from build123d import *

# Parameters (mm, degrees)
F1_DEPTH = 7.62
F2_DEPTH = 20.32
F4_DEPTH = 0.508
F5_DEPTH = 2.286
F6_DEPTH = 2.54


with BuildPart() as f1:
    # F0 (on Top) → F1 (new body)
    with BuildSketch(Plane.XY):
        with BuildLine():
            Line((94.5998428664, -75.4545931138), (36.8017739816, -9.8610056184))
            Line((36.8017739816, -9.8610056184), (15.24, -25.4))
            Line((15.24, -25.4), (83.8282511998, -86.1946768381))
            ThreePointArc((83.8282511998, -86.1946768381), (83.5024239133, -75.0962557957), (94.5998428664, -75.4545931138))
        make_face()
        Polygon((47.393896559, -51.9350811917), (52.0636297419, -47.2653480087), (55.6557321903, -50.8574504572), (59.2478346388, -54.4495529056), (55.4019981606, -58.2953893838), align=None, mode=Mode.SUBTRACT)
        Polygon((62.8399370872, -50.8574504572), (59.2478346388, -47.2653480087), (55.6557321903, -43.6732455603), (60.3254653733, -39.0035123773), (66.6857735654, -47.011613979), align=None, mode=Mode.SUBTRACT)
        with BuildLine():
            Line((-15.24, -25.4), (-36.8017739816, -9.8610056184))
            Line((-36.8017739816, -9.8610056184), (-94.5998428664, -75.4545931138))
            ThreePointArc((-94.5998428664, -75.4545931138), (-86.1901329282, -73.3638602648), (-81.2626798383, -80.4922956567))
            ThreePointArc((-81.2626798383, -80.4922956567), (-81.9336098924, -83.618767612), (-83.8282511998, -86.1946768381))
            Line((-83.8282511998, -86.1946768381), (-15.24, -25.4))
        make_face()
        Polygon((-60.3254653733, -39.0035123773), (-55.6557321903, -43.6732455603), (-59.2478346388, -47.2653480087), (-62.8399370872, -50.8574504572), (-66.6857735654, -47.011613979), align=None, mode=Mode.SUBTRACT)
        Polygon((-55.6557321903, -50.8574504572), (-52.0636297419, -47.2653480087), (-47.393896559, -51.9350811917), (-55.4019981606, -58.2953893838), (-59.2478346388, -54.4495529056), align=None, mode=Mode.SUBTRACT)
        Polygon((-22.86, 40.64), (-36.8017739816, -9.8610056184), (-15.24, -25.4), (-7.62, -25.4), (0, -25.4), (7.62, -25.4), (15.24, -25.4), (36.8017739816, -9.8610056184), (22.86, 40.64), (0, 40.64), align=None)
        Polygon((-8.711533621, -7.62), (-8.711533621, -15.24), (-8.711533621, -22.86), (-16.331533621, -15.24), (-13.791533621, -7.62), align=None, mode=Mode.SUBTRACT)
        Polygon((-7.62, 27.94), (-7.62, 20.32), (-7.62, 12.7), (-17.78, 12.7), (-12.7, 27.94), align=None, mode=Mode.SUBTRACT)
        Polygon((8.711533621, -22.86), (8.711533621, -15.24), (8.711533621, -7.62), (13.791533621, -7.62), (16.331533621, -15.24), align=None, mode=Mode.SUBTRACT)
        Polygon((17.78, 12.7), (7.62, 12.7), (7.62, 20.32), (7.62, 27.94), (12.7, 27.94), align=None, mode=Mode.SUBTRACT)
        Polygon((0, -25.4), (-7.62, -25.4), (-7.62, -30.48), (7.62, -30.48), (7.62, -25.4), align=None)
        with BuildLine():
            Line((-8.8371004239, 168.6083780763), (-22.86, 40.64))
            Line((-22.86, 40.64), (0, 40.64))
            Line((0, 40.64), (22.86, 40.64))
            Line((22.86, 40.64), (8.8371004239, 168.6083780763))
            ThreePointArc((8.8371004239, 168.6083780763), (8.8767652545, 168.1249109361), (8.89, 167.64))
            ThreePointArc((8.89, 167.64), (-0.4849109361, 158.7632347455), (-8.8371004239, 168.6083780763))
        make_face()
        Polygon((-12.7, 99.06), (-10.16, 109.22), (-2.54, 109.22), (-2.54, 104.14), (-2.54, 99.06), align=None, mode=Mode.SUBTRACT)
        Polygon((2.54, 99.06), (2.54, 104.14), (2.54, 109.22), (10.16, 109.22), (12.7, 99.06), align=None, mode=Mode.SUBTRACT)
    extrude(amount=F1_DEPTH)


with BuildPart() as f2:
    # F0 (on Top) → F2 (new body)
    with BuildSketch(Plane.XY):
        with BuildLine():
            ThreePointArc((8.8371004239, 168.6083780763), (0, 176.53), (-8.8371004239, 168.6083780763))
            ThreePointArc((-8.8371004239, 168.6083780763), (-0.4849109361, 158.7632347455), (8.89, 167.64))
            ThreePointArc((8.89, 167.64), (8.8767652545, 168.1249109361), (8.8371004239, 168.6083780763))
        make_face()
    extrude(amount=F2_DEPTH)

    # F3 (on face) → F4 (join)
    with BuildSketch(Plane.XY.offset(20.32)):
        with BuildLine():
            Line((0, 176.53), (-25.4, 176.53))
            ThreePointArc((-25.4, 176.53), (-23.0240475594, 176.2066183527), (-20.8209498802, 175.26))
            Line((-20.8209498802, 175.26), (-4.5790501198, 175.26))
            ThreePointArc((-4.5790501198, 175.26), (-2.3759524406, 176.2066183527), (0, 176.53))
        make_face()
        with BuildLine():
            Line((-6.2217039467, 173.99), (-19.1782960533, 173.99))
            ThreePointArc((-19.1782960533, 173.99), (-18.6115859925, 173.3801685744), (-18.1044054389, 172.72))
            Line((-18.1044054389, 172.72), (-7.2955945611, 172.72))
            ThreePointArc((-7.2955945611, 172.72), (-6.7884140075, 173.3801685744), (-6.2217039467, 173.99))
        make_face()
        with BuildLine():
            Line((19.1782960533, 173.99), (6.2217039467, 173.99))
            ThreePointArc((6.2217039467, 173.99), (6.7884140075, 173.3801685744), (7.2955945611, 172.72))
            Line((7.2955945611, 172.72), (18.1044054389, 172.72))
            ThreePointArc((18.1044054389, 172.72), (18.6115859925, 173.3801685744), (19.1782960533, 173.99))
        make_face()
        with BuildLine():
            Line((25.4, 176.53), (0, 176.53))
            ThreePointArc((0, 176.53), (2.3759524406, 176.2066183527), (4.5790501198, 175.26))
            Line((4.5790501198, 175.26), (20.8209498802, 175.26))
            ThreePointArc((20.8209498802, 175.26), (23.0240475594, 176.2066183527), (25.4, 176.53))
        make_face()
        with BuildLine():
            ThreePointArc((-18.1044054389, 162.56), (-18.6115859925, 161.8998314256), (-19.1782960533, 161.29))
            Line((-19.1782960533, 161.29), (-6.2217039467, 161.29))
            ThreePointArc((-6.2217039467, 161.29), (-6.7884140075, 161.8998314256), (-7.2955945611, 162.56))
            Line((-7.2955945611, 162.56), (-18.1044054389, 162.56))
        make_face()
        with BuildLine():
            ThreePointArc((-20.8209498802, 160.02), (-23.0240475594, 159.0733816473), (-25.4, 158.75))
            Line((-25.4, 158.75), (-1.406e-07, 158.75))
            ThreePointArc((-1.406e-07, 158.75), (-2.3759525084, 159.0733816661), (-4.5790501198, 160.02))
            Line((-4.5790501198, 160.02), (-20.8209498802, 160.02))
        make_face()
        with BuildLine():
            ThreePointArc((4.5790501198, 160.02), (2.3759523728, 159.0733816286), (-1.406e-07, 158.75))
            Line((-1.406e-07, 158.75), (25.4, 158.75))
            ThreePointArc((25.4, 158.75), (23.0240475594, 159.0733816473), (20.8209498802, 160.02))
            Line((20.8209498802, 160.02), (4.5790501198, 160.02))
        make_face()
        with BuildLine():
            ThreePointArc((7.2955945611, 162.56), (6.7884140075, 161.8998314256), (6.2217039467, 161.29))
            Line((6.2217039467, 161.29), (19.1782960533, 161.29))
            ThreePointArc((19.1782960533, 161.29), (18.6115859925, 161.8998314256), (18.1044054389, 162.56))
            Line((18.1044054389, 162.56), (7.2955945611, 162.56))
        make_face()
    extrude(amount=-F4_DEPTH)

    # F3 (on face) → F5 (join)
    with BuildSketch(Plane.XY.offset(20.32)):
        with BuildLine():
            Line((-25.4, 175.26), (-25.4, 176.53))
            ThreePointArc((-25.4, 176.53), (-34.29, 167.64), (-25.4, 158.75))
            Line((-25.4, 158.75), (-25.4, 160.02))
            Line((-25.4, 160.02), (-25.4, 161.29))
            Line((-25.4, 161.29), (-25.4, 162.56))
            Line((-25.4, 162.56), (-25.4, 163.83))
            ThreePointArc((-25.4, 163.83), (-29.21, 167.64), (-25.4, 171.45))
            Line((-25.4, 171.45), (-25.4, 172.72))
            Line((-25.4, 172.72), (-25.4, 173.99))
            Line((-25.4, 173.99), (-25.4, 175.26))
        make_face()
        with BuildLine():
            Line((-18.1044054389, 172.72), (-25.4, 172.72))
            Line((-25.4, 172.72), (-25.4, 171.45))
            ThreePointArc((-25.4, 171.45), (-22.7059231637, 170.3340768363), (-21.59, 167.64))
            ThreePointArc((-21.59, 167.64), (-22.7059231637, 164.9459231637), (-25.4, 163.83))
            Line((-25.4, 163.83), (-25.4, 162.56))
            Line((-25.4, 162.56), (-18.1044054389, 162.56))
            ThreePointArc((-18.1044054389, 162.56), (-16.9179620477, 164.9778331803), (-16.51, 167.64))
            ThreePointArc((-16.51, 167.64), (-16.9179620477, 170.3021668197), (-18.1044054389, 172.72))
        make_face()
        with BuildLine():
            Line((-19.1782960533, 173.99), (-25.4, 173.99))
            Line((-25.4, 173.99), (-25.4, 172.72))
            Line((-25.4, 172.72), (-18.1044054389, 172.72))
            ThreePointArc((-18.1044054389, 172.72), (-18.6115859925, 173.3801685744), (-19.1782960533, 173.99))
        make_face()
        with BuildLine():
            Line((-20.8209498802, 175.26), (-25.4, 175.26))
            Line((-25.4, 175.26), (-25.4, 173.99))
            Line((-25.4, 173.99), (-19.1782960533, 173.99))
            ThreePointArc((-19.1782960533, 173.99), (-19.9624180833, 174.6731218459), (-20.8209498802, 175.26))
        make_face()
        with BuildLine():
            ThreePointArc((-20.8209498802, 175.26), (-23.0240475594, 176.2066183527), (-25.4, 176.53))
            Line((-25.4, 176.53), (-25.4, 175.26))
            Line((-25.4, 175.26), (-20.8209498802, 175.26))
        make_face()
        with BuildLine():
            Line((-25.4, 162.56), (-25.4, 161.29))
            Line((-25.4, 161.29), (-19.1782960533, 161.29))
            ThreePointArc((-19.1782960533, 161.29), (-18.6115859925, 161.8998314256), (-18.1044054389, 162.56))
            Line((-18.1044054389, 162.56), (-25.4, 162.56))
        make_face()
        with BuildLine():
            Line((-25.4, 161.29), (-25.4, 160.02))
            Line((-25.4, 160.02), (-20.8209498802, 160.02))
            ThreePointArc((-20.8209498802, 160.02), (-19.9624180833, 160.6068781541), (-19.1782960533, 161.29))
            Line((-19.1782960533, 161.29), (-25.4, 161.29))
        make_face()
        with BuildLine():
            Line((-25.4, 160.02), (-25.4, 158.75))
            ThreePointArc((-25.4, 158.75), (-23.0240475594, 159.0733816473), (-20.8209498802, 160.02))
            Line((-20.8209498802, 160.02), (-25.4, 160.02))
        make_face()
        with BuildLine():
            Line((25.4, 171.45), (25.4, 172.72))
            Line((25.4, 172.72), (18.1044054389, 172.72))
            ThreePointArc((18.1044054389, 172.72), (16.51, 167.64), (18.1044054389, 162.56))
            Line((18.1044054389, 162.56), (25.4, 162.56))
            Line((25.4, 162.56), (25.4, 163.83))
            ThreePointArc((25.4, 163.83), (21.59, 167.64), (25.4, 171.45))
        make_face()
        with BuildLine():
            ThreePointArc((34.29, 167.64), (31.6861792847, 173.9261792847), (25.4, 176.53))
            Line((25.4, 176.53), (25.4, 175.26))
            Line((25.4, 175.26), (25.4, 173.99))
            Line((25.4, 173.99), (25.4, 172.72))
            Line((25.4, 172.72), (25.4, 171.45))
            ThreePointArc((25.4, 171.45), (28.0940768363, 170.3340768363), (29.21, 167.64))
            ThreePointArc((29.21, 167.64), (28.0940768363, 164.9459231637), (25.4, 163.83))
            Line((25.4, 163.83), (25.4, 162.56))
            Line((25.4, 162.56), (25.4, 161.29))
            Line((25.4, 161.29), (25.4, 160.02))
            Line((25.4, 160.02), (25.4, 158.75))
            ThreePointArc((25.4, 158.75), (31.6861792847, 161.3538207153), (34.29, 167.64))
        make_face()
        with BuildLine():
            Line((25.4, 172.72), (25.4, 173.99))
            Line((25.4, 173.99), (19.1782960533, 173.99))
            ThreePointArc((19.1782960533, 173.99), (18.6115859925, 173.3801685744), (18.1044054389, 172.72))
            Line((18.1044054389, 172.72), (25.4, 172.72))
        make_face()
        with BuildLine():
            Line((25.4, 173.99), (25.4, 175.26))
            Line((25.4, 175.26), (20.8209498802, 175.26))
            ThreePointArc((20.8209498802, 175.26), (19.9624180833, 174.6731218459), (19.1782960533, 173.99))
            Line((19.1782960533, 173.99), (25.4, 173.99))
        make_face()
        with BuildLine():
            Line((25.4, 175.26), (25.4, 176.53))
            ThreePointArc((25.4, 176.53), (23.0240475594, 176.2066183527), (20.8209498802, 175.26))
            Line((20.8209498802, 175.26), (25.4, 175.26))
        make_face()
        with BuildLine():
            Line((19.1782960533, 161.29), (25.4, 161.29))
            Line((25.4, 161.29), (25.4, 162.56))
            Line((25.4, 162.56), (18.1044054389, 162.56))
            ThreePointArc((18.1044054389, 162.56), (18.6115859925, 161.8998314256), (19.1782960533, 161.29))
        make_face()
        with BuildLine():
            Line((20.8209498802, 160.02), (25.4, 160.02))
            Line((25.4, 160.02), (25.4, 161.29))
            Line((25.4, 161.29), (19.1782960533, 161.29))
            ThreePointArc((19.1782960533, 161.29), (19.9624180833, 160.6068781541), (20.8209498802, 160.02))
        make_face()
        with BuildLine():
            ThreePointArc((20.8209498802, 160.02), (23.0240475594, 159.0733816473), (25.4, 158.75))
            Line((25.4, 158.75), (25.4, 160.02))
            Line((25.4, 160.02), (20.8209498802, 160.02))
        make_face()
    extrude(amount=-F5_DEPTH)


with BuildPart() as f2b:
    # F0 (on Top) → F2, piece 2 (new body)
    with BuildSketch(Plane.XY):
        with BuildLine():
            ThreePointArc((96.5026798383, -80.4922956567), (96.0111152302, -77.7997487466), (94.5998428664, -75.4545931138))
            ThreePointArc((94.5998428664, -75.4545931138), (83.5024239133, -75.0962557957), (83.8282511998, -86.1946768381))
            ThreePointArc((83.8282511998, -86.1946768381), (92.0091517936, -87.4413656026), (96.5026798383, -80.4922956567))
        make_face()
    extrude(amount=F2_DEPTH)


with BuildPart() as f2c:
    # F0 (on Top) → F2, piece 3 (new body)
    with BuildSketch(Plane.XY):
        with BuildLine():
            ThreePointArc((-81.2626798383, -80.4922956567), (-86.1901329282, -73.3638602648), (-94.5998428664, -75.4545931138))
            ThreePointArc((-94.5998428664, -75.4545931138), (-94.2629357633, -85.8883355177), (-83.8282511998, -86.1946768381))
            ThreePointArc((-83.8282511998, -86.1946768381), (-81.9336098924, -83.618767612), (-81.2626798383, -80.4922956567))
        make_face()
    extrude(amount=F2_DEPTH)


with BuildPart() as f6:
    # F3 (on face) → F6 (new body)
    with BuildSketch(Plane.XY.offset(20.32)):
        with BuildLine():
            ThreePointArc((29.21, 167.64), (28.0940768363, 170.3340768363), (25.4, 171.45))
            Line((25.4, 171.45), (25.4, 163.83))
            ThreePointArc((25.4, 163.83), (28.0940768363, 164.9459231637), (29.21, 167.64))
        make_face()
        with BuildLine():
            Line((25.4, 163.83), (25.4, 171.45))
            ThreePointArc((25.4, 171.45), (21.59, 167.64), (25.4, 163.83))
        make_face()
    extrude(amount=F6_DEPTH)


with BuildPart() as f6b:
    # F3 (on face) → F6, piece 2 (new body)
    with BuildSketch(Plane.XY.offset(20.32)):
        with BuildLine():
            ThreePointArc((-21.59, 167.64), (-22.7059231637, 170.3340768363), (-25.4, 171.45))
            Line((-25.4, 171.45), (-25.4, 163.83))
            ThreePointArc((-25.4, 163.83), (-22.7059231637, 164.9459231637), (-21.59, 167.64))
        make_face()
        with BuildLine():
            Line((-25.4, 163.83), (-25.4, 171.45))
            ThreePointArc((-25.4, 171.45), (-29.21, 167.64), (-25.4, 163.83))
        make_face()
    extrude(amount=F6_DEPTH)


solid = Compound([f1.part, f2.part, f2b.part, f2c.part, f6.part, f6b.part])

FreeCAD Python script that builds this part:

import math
import FreeCAD as App
import Part
import Sketcher
from FreeCAD import Vector
Q = App.Units.Quantity


def add_polygon(sketch, points):
    """Adds a closed chain of lines whose ends are joined by coincident constraints."""
    first, n = sketch.GeometryCount, len(points)
    for a, b in zip(points, points[1:] + points[:1]):
        sketch.addGeometry(Part.LineSegment(App.Vector(*a, 0), App.Vector(*b, 0)), False)
    for i in range(n):
        sketch.addConstraint(Sketcher.Constraint("Coincident", first + i, 2, first + (i + 1) % n, 1))

doc = App.newDocument("Part")
body = doc.addObject("PartDesign::Body", "Body")

sketch1 = body.newObject("Sketcher::SketchObject", "Sketch")
sketch1.AttachmentSupport = (doc.getObject("XY_Plane"), [""])
sketch1.MapMode = "FlatFace"
sketch1.addGeometry(Part.LineSegment(Vector(94.6, -75.5, 0), Vector(36.8, -9.9, 0)), False)
sketch1.addGeometry(Part.LineSegment(Vector(36.8, -9.9, 0), Vector(22.9, 40.6, 0)), False)
sketch1.addGeometry(Part.LineSegment(Vector(22.9, 40.6, 0), Vector(8.8, 168.6, 0)), False)
sketch1.addGeometry(Part.ArcOfCircle(Part.Circle(Vector(0, 167.6, 0), Vector(0, 0, 1), 8.9), math.radians(0), math.radians(6.25)), False)
sketch1.addGeometry(Part.ArcOfCircle(Part.Circle(Vector(0, 167.6, 0), Vector(0, 0, 1), 8.9), math.radians(174), math.radians(360)), False)
sketch1.addGeometry(Part.LineSegment(Vector(-8.8, 168.6, 0), Vector(-22.9, 40.6, 0)), False)
sketch1.addGeometry(Part.LineSegment(Vector(-22.9, 40.6, 0), Vector(-36.8, -9.9, 0)), False)
sketch1.addGeometry(Part.LineSegment(Vector(-36.8, -9.9, 0), Vector(-94.6, -75.5, 0)), False)
sketch1.addGeometry(Part.ArcOfCircle(Part.Circle(Vector(-88.9, -80.5, 0), Vector(0, 0, 1), 7.6), math.radians(0), math.radians(139)), False)
sketch1.addGeometry(Part.ArcOfCircle(Part.Circle(Vector(-88.9, -80.5, 0), Vector(0, 0, 1), 7.6), math.radians(-48), math.radians(0)), False)
sketch1.addGeometry(Part.LineSegment(Vector(-83.8, -86.2, 0), Vector(-15.2, -25.4, 0)), False)
sketch1.addGeometry(Part.LineSegment(Vector(-15.2, -25.4, 0), Vector(-7.6, -25.4, 0)), False)
sketch1.addGeometry(Part.LineSegment(Vector(-7.6, -25.4, 0), Vector(-7.6, -30.5, 0)), False)
sketch1.addGeometry(Part.LineSegment(Vector(-7.6, -30.5, 0), Vector(7.6, -30.5, 0)), False)
sketch1.addGeometry(Part.LineSegment(Vector(7.6, -30.5, 0), Vector(7.6, -25.4, 0)), False)
sketch1.addGeometry(Part.LineSegment(Vector(7.6, -25.4, 0), Vector(15.2, -25.4, 0)), False)
sketch1.addGeometry(Part.LineSegment(Vector(15.2, -25.4, 0), Vector(83.8, -86.2, 0)), False)
sketch1.addGeometry(Part.ArcOfCircle(Part.Circle(Vector(88.9, -80.5, 0), Vector(0, 0, 1), 7.6), math.radians(41), math.radians(228)), False)
add_polygon(sketch1, [(-59.2, -54.4), (-55.7, -50.9), (-52.1, -47.3), (-47.4, -51.9), (-55.4, -58.3)])
add_polygon(sketch1, [(-55.7, -43.7), (-59.2, -47.3), (-62.8, -50.9), (-66.7, -47), (-60.3, -39)])
add_polygon(sketch1, [(-13.8, -7.6), (-8.7, -7.6), (-8.7, -22.9), (-16.3, -15.2)])
add_polygon(sketch1, [(-12.7, 27.9), (-7.6, 27.9), (-7.6, 12.7), (-17.8, 12.7)])
add_polygon(sketch1, [(55.4, -58.3), (47.4, -51.9), (52.1, -47.3), (55.7, -50.9), (59.2, -54.4)])
add_polygon(sketch1, [(66.7, -47), (62.8, -50.9), (59.2, -47.3), (55.7, -43.7), (60.3, -39)])
add_polygon(sketch1, [(16.3, -15.2), (8.7, -22.9), (8.7, -7.6), (13.8, -7.6)])
add_polygon(sketch1, [(12.7, 27.9), (17.8, 12.7), (7.6, 12.7), (7.6, 27.9)])
add_polygon(sketch1, [(-2.5, 99.1), (-12.7, 99.1), (-10.2, 109.2), (-2.5, 109.2)])
add_polygon(sketch1, [(12.7, 99.1), (2.5, 99.1), (2.5, 109.2), (10.2, 109.2)])
sketch1.addConstraint([
    Sketcher.Constraint("Coincident", 0, 2, 1, 1),
    Sketcher.Constraint("Coincident", 1, 2, 2, 1),
    Sketcher.Constraint("Tangent", 2, 2, 3, 2),
    Sketcher.Constraint("Tangent", 3, 1, 4, 2),
    Sketcher.Constraint("Tangent", 4, 1, 5, 1),
    Sketcher.Constraint("Coincident", 5, 2, 6, 1),
    Sketcher.Constraint("Coincident", 6, 2, 7, 1),
    Sketcher.Constraint("Tangent", 7, 2, 8, 2),
    Sketcher.Constraint("Tangent", 8, 1, 9, 2),
    Sketcher.Constraint("Tangent", 9, 1, 10, 1),
    Sketcher.Constraint("Coincident", 10, 2, 11, 1),
    Sketcher.Constraint("Coincident", 11, 2, 12, 1),
    Sketcher.Constraint("Coincident", 12, 2, 13, 1),
    Sketcher.Constraint("Coincident", 13, 2, 14, 1),
    Sketcher.Constraint("Coincident", 14, 2, 15, 1),
    Sketcher.Constraint("Coincident", 15, 2, 16, 1),
    Sketcher.Constraint("Tangent", 16, 2, 17, 2),
    Sketcher.Constraint("Tangent", 17, 1, 0, 1),
    Sketcher.Constraint("Horizontal", 11),
    Sketcher.Constraint("Vertical", 12),
    Sketcher.Constraint("Horizontal", 13),
    Sketcher.Constraint("Vertical", 14),
    Sketcher.Constraint("Horizontal", 15),
    Sketcher.Constraint("Horizontal", 28),
    Sketcher.Constraint("Vertical", 29),
    Sketcher.Constraint("Horizontal", 32),
    Sketcher.Constraint("Vertical", 33),
    Sketcher.Constraint("Horizontal", 34),
    Sketcher.Constraint("Vertical", 47),
    Sketcher.Constraint("Horizontal", 48),
    Sketcher.Constraint("Horizontal", 51),
    Sketcher.Constraint("Vertical", 52),
    Sketcher.Constraint("Horizontal", 53),
    Sketcher.Constraint("Horizontal", 54),
    Sketcher.Constraint("Horizontal", 56),
    Sketcher.Constraint("Vertical", 57),
    Sketcher.Constraint("Horizontal", 58),
    Sketcher.Constraint("Vertical", 59),
    Sketcher.Constraint("Horizontal", 60),
    Sketcher.Constraint("Equal", 3, 4),
    Sketcher.Constraint("Equal", 8, 9),
    Sketcher.Constraint("Equal", 9, 17),
    Sketcher.Constraint("Symmetric", 8, 3, 17, 3, -2),
    Sketcher.Constraint("Symmetric", 2, 2, 4, 1, -2),
    Sketcher.Constraint("Symmetric", 0, 2, 6, 2, -2),
    Sketcher.Constraint("Symmetric", 11, 2, 14, 2, -2),
    Sketcher.Constraint("Symmetric", 20, 2, 36, 2, -2),
    Sketcher.Constraint("Symmetric", 19, 2, 37, 2, -2),
    Sketcher.Constraint("Symmetric", 18, 2, 38, 2, -2),
    Sketcher.Constraint("Symmetric", 22, 2, 39, 2, -2),
    Sketcher.Constraint("Symmetric", 21, 2, 40, 2, -2),
    Sketcher.Constraint("Symmetric", 24, 2, 41, 2, -2),
    Sketcher.Constraint("Symmetric", 23, 2, 42, 2, -2),
    Sketcher.Constraint("Symmetric", 27, 2, 43, 2, -2),
    Sketcher.Constraint("Symmetric", 26, 2, 44, 2, -2),
    Sketcher.Constraint("Symmetric", 25, 2, 45, 2, -2),
    Sketcher.Constraint("Symmetric", 29, 2, 46, 2, -2),
    Sketcher.Constraint("Symmetric", 31, 2, 48, 2, -2),
    Sketcher.Constraint("Symmetric", 30, 2, 49, 2, -2),
    Sketcher.Constraint("Symmetric", 34, 2, 50, 2, -2),
    Sketcher.Constraint("Symmetric", 32, 2, 52, 2, -2),
    Sketcher.Constraint("Symmetric", 57, 2, 58, 2, -2),
    Sketcher.Constraint("Symmetric", 55, 2, 60, 2, -2),
    Sketcher.Constraint("Parallel", 18, 19),
    Sketcher.Constraint("Perpendicular", 19, 20),
    Sketcher.Constraint("Parallel", 20, 22),
    Sketcher.Constraint("Perpendicular", 22, 23),
    Sketcher.Constraint("Parallel", 23, 24),
    Sketcher.Constraint("Perpendicular", 24, 25),
    Sketcher.Constraint("Parallel", 25, 27),
    Sketcher.Constraint("Parallel", 27, 30),
    Sketcher.Constraint("Parallel", 31, 35),
    Sketcher.Constraint("Perpendicular", 26, 36),
    Sketcher.Constraint("Perpendicular", 30, 37),
    Sketcher.Constraint("Parallel", 49, 50),
    Sketcher.Constraint("Horizontal", 4, 3, 3, 1),
    Sketcher.Constraint("Horizontal", 1, 2, 5, 2),
    Sketcher.Constraint("Horizontal", 17, 3, 8, 1),
    Sketcher.Constraint("Horizontal", 9, 1, 16, 2),
    Sketcher.Constraint("Horizontal", 19, 2, 23, 2),
    Sketcher.Constraint("Horizontal", 18, 2, 24, 2),
    Sketcher.Constraint("Vertical", 22, 2, 23, 2),
    Sketcher.Constraint("Vertical", 18, 2, 27, 2),
    Sketcher.Constraint("Vertical", 12, 2, 32, 2),
    Sketcher.Constraint("Vertical", 35, 2, 54, 2),
    Sketcher.Constraint("Vertical", 53, 2, 61, 2),
    Sketcher.Constraint("Equal", 28, 32),
    Sketcher.Constraint("Equal", 51, 54),
    Sketcher.Constraint("Equal", 15, 56),
    Sketcher.Constraint("Equal", 53, 12),
    Sketcher.Constraint("Equal", 13, 29),
    Sketcher.Constraint("Equal", 29, 33),
    Sketcher.Constraint("Equal", 58, 57),
    Sketcher.Constraint("Equal", 18, 19),
    Sketcher.Constraint("Equal", 22, 25),
    Sketcher.Constraint("Radius", 8, Q("0.3 in")),
    Sketcher.Constraint("Radius", 3, Q("0.35 in")),
    Sketcher.Constraint("DistanceX", 11, 1, 11, 2, Q("0.3 in")),
    Sketcher.Constraint("DistanceX", 13, 1, 13, 2, Q("0.6 in")),
    Sketcher.Constraint("DistanceX", 28, 1, 28, 2, Q("0.2 in")),
    Sketcher.Constraint("DistanceX", 34, 2, 34, 1, Q("0.4 in")),
    Sketcher.Constraint("DistanceY", 10, 2, -1, 1, Q("1 in")),
    Sketcher.Constraint("Distance", 18, Q("0.2 in")),
    Sketcher.Constraint("DistanceY", -1, 1, 3, 3, Q("6.6 in")),
    Sketcher.Constraint("DistanceX", -1, 1, 1, 2, Q("0.9 in")),
    Sketcher.Constraint("DistanceY", -1, 1, 1, 2, Q("1.6 in")),
    Sketcher.Constraint("DistanceY", 28, 2, -1, 1, Q("0.3 in")),
    Sketcher.Constraint("DistanceY", -1, 1, 32, 2, Q("1.1 in")),
    Sketcher.Constraint("DistanceY", -1, 1, 54, 2, Q("3.9 in")),
    Sketcher.Constraint("Distance", 20, Q("0.26 in")),
    Sketcher.Constraint("DistanceX", 21, 2, -1, 1, 55.401998),
    Sketcher.Constraint("Distance", 1, 52.39012),
    Sketcher.Constraint("DistanceX", 8, 3, -1, 1, 88.88268),
    Sketcher.Constraint("DistanceX", 9, 1, -1, 1, 83.828251),
    Sketcher.Constraint("DistanceY", 18, 2, -1, 1, 50.85745),
    Sketcher.Constraint("DistanceX", 19, 2, -1, 1, 52.06363),
    Sketcher.Constraint("Distance", 0, 87.425028),
    Sketcher.Constraint("DistanceX", 28, 2, -1, 1, 8.711534),
])
pad1 = body.newObject("PartDesign::Pad", "Pad")
pad1.Profile = sketch1
pad1.Length = Q("0.3 in")
body2 = doc.addObject("PartDesign::Body", "Body001")

sketch2 = body2.newObject("Sketcher::SketchObject", "Sketch001")
sketch2.AttachmentSupport = (doc.getObject("XY_Plane001"), [""])
sketch2.MapMode = "FlatFace"
sketch2.addGeometry([
    Part.ArcOfCircle(Part.Circle(Vector(0, 167.6, 0), Vector(0, 0, 1), 8.9), math.radians(6), math.radians(174)),
    Part.ArcOfCircle(Part.Circle(Vector(0, 167.6, 0), Vector(0, 0, 1), 8.9), math.radians(174), math.radians(360)),
    Part.ArcOfCircle(Part.Circle(Vector(0, 167.6, 0), Vector(0, 0, 1), 8.9), math.radians(0), math.radians(6.25)),
], False)
sketch2.addConstraint([
    Sketcher.Constraint("Tangent", 0, 2, 1, 1),
    Sketcher.Constraint("Tangent", 1, 2, 2, 1),
    Sketcher.Constraint("Tangent", 2, 2, 0, 1),
    Sketcher.Constraint("Symmetric", 0, 2, 2, 2, -2),
    Sketcher.Constraint("Horizontal", 2, 3, 1, 2),
    Sketcher.Constraint("Radius", 0, Q("0.35 in")),
    Sketcher.Constraint("DistanceY", -1, 1, 0, 3, Q("6.6 in")),
    Sketcher.Constraint("DistanceX", 0, 2, -1, 1, 8.8371),
])
pad2 = body2.newObject("PartDesign::Pad", "Pad001")
pad2.Profile = sketch2
pad2.Length = Q("0.8 in")

sketch3 = body2.newObject("Sketcher::SketchObject", "Sketch002")
sketch3.AttachmentSupport = (doc.getObject("XY_Plane001"), [""])
sketch3.MapMode = "FlatFace"
sketch3.AttachmentOffset = App.Placement(Vector(0, 0, 0.8 * 25.4), App.Rotation())
sketch3.addGeometry([
    Part.LineSegment(Vector(0, 176.5, 0), Vector(-25.4, 176.5, 0)),
    Part.ArcOfCircle(Part.Circle(Vector(-25.4, 167.6, 0), Vector(0, 0, 1), 8.9), math.radians(59), math.radians(90)),
    Part.LineSegment(Vector(-20.8, 175.3, 0), Vector(-4.6, 175.3, 0)),
    Part.ArcOfCircle(Part.Circle(Vector(0, 167.6, 0), Vector(0, 0, 1), 8.9), math.radians(90), math.radians(121)),
    Part.LineSegment(Vector(-6.2, 174, 0), Vector(-19.2, 174, 0)),
    Part.ArcOfCircle(Part.Circle(Vector(-25.4, 167.6, 0), Vector(0, 0, 1), 8.9), math.radians(34.85), math.radians(45.58)),
    Part.LineSegment(Vector(-18.1, 172.7, 0), Vector(-7.3, 172.7, 0)),
    Part.ArcOfCircle(Part.Circle(Vector(0, 167.6, 0), Vector(0, 0, 1), 8.9), math.radians(134.42), math.radians(145.15)),
    Part.LineSegment(Vector(19.2, 174, 0), Vector(6.2, 174, 0)),
    Part.ArcOfCircle(Part.Circle(Vector(0, 167.6, 0), Vector(0, 0, 1), 8.9), math.radians(34.85), math.radians(45.58)),
    Part.LineSegment(Vector(7.3, 172.7, 0), Vector(18.1, 172.7, 0)),
    Part.ArcOfCircle(Part.Circle(Vector(25.4, 167.6, 0), Vector(0, 0, 1), 8.9), math.radians(134.42), math.radians(145.15)),
    Part.LineSegment(Vector(25.4, 176.5, 0), Vector(0, 176.5, 0)),
    Part.ArcOfCircle(Part.Circle(Vector(0, 167.6, 0), Vector(0, 0, 1), 8.9), math.radians(59), math.radians(90)),
    Part.LineSegment(Vector(4.6, 175.3, 0), Vector(20.8, 175.3, 0)),
    Part.ArcOfCircle(Part.Circle(Vector(25.4, 167.6, 0), Vector(0, 0, 1), 8.9), math.radians(90), math.radians(121)),
    Part.ArcOfCircle(Part.Circle(Vector(-25.4, 167.6, 0), Vector(0, 0, 1), 8.9), math.radians(-45.58), math.radians(-34.85)),
    Part.LineSegment(Vector(-19.2, 161.3, 0), Vector(-6.2, 161.3, 0)),
    Part.ArcOfCircle(Part.Circle(Vector(0, 167.6, 0), Vector(0, 0, 1), 8.9), math.radians(-145.15), math.radians(-134.42)),
    Part.LineSegment(Vector(-7.3, 162.6, 0), Vector(-18.1, 162.6, 0)),
    Part.ArcOfCircle(Part.Circle(Vector(-25.4, 167.6, 0), Vector(0, 0, 1), 8.9), math.radians(-90), math.radians(-59)),
    Part.LineSegment(Vector(-25.4, 158.8, 0), Vector(0, 158.8, 0)),
    Part.ArcOfCircle(Part.Circle(Vector(0, 167.6, 0), Vector(0, 0, 1), 8.9), math.radians(-121), math.radians(-90)),
    Part.LineSegment(Vector(-4.6, 160, 0), Vector(-20.8, 160, 0)),
    Part.ArcOfCircle(Part.Circle(Vector(0, 167.6, 0), Vector(0, 0, 1), 8.9), math.radians(-90), math.radians(-59)),
    Part.LineSegment(Vector(0, 158.8, 0), Vector(25.4, 158.8, 0)),
    Part.ArcOfCircle(Part.Circle(Vector(25.4, 167.6, 0), Vector(0, 0, 1), 8.9), math.radians(-121), math.radians(-90)),
    Part.LineSegment(Vector(20.8, 160, 0), Vector(4.6, 160, 0)),
    Part.ArcOfCircle(Part.Circle(Vector(0, 167.6, 0), Vector(0, 0, 1), 8.9), math.radians(-45.58), math.radians(-34.85)),
    Part.LineSegment(Vector(6.2, 161.3, 0), Vector(19.2, 161.3, 0)),
    Part.ArcOfCircle(Part.Circle(Vector(25.4, 167.6, 0), Vector(0, 0, 1), 8.9), math.radians(-145.15), math.radians(-134.42)),
    Part.LineSegment(Vector(18.1, 162.6, 0), Vector(7.3, 162.6, 0)),
], False)
sketch3.addConstraint([
    Sketcher.Constraint("Tangent", 0, 2, 1, 2),
    Sketcher.Constraint("Coincident", 1, 1, 2, 1),
    Sketcher.Constraint("Coincident", 2, 2, 3, 2),
    Sketcher.Constraint("Tangent", 3, 1, 0, 1),
    Sketcher.Constraint("Coincident", 4, 2, 5, 2),
    Sketcher.Constraint("Coincident", 5, 1, 6, 1),
    Sketcher.Constraint("Coincident", 6, 2, 7, 2),
    Sketcher.Constraint("Coincident", 7, 1, 4, 1),
    Sketcher.Constraint("Coincident", 8, 2, 9, 2),
    Sketcher.Constraint("Coincident", 9, 1, 10, 1),
    Sketcher.Constraint("Coincident", 10, 2, 11, 2),
    Sketcher.Constraint("Coincident", 11, 1, 8, 1),
    Sketcher.Constraint("Tangent", 12, 2, 13, 2),
    Sketcher.Constraint("Coincident", 13, 1, 14, 1),
    Sketcher.Constraint("Coincident", 14, 2, 15, 2),
    Sketcher.Constraint("Tangent", 15, 1, 12, 1),
    Sketcher.Constraint("Coincident", 16, 1, 17, 1),
    Sketcher.Constraint("Coincident", 17, 2, 18, 2),
    Sketcher.Constraint("Coincident", 18, 1, 19, 1),
    Sketcher.Constraint("Coincident", 19, 2, 16, 2),
    Sketcher.Constraint("Tangent", 20, 1, 21, 1),
    Sketcher.Constraint("Tangent", 21, 2, 22, 2),
    Sketcher.Constraint("Coincident", 22, 1, 23, 1),
    Sketcher.Constraint("Coincident", 23, 2, 20, 2),
    Sketcher.Constraint("Tangent", 24, 1, 25, 1),
    Sketcher.Constraint("Tangent", 25, 2, 26, 2),
    Sketcher.Constraint("Coincident", 26, 1, 27, 1),
    Sketcher.Constraint("Coincident", 27, 2, 24, 2),
    Sketcher.Constraint("Coincident", 28, 1, 29, 1),
    Sketcher.Constraint("Coincident", 29, 2, 30, 2),
    Sketcher.Constraint("Coincident", 30, 1, 31, 1),
    Sketcher.Constraint("Coincident", 31, 2, 28, 2),
    Sketcher.Constraint("Horizontal", 0),
    Sketcher.Constraint("Horizontal", 2),
    Sketcher.Constraint("Horizontal", 4),
    Sketcher.Constraint("Horizontal", 6),
    Sketcher.Constraint("Horizontal", 8),
    Sketcher.Constraint("Horizontal", 10),
    Sketcher.Constraint("Horizontal", 12),
    Sketcher.Constraint("Horizontal", 14),
    Sketcher.Constraint("Horizontal", 17),
    Sketcher.Constraint("Horizontal", 19),
    Sketcher.Constraint("Horizontal", 21),
    Sketcher.Constraint("Horizontal", 23),
    Sketcher.Constraint("Horizontal", 25),
    Sketcher.Constraint("Horizontal", 27),
    Sketcher.Constraint("Horizontal", 29),
    Sketcher.Constraint("Horizontal", 31),
    Sketcher.Constraint("Coincident", 5, 3, 1, 3),
    Sketcher.Constraint("Coincident", 7, 3, 3, 3),
    Sketcher.Constraint("Coincident", 9, 3, 3, 3),
    Sketcher.Constraint("Coincident", 13, 3, 3, 3),
    Sketcher.Constraint("Coincident", 15, 3, 11, 3),
    Sketcher.Constraint("Coincident", 16, 3, 1, 3),
    Sketcher.Constraint("Coincident", 18, 3, 3, 3),
    Sketcher.Constraint("Coincident", 20, 3, 1, 3),
    Sketcher.Constraint("Coincident", 22, 3, 3, 3),
    Sketcher.Constraint("Coincident", 24, 3, 3, 3),
    Sketcher.Constraint("Coincident", 26, 3, 11, 3),
    Sketcher.Constraint("Coincident", 28, 3, 3, 3),
    Sketcher.Constraint("Coincident", 30, 3, 11, 3),
    Sketcher.Constraint("Equal", 1, 3),
    Sketcher.Constraint("Equal", 3, 5),
    Sketcher.Constraint("Equal", 5, 7),
    Sketcher.Constraint("Equal", 7, 9),
    Sketcher.Constraint("Equal", 9, 11),
    Sketcher.Constraint("Equal", 11, 13),
    Sketcher.Constraint("Equal", 13, 15),
    Sketcher.Constraint("Equal", 15, 16),
    Sketcher.Constraint("Equal", 16, 18),
    Sketcher.Constraint("Equal", 18, 20),
    Sketcher.Constraint("Equal", 22, 24),
    Sketcher.Constraint("Equal", 26, 28),
    Sketcher.Constraint("Equal", 28, 30),
    Sketcher.Constraint("Symmetric", 7, 1, 8, 2, -2),
    Sketcher.Constraint("Symmetric", 5, 1, 10, 2, -2),
    Sketcher.Constraint("Horizontal", 2, 2, 13, 1),
    Sketcher.Constraint("Horizontal", 23, 2, 26, 1),
    Sketcher.Constraint("Horizontal", 17, 2, 28, 1),
    Sketcher.Constraint("Horizontal", 19, 2, 30, 1),
    Sketcher.Constraint("Vertical", 4, 2, 16, 1),
    Sketcher.Constraint("Vertical", 6, 2, 18, 1),
    Sketcher.Constraint("Vertical", 2, 2, 22, 1),
    Sketcher.Constraint("DistanceX", 0, 2, 0, 1, Q("1 in")),
    Sketcher.Constraint("Radius", 1, Q("0.35 in")),
    Sketcher.Constraint("DistanceY", -1, 1, 1, 3, Q("6.6 in")),
    Sketcher.Constraint("DistanceY", -1, 1, 1, 1, Q("6.9 in")),
    Sketcher.Constraint("DistanceY", -1, 1, 5, 1, Q("6.8 in")),
    Sketcher.Constraint("DistanceY", 4, 2, 0, 2, Q("0.1 in")),
])
pad3 = body2.newObject("PartDesign::Pad", "Pad002")
pad3.Profile = sketch3
pad3.Length = Q("0.02 in")
pad3.Reversed = True

sketch4 = body2.newObject("Sketcher::SketchObject", "Sketch003")
sketch4.AttachmentSupport = (doc.getObject("XY_Plane001"), [""])
sketch4.MapMode = "FlatFace"
sketch4.AttachmentOffset = App.Placement(Vector(0, 0, 0.8 * 25.4), App.Rotation())
sketch4.addGeometry([
    Part.ArcOfCircle(Part.Circle(Vector(-25.4, 167.6, 0), Vector(0, 0, 1), 8.9), math.radians(90), math.radians(270)),
    Part.ArcOfCircle(Part.Circle(Vector(-25.4, 167.6, 0), Vector(0, 0, 1), 8.9), math.radians(-90), math.radians(-59)),
    Part.ArcOfCircle(Part.Circle(Vector(-25.4, 167.6, 0), Vector(0, 0, 1), 8.9), math.radians(-59), math.radians(-45.58)),
    Part.ArcOfCircle(Part.Circle(Vector(-25.4, 167.6, 0), Vector(0, 0, 1), 8.9), math.radians(-45.58), math.radians(-34.85)),
    Part.ArcOfCircle(Part.Circle(Vector(-25.4, 167.6, 0), Vector(0, 0, 1), 8.9), math.radians(-35), math.radians(0)),
    Part.ArcOfCircle(Part.Circle(Vector(-25.4, 167.6, 0), Vector(0, 0, 1), 8.9), math.radians(0), math.radians(35)),
    Part.ArcOfCircle(Part.Circle(Vector(-25.4, 167.6, 0), Vector(0, 0, 1), 8.9), math.radians(34.85), math.radians(45.58)),
    Part.ArcOfCircle(Part.Circle(Vector(-25.4, 167.6, 0), Vector(0, 0, 1), 8.9), math.radians(45.58), math.radians(59)),
    Part.ArcOfCircle(Part.Circle(Vector(-25.4, 167.6, 0), Vector(0, 0, 1), 8.9), math.radians(59), math.radians(90)),
    Part.ArcOfCircle(Part.Circle(Vector(-25.4, 167.6, 0), Vector(0, 0, 1), 3.8), math.radians(90), math.radians(270)),
    Part.ArcOfCircle(Part.Circle(Vector(-25.4, 167.6, 0), Vector(0, 0, 1), 3.8), math.radians(0), math.radians(90)),
    Part.ArcOfCircle(Part.Circle(Vector(-25.4, 167.6, 0), Vector(0, 0, 1), 3.8), math.radians(-90), math.radians(0)),
    Part.ArcOfCircle(Part.Circle(Vector(25.4, 167.6, 0), Vector(0, 0, 1), 8.9), math.radians(145), math.radians(215)),
    Part.ArcOfCircle(Part.Circle(Vector(25.4, 167.6, 0), Vector(0, 0, 1), 8.9), math.radians(-145.15), math.radians(-134.42)),
    Part.ArcOfCircle(Part.Circle(Vector(25.4, 167.6, 0), Vector(0, 0, 1), 8.9), math.radians(-134.42), math.radians(-121)),
    Part.ArcOfCircle(Part.Circle(Vector(25.4, 167.6, 0), Vector(0, 0, 1), 8.9), math.radians(-121), math.radians(-90)),
    Part.ArcOfCircle(Part.Circle(Vector(25.4, 167.6, 0), Vector(0, 0, 1), 8.9), math.radians(-90), math.radians(0)),
    Part.ArcOfCircle(Part.Circle(Vector(25.4, 167.6, 0), Vector(0, 0, 1), 8.9), math.radians(0), math.radians(90)),
    Part.ArcOfCircle(Part.Circle(Vector(25.4, 167.6, 0), Vector(0, 0, 1), 8.9), math.radians(90), math.radians(121)),
    Part.ArcOfCircle(Part.Circle(Vector(25.4, 167.6, 0), Vector(0, 0, 1), 8.9), math.radians(121), math.radians(134.42)),
    Part.ArcOfCircle(Part.Circle(Vector(25.4, 167.6, 0), Vector(0, 0, 1), 8.9), math.radians(134.42), math.radians(145.15)),
    Part.ArcOfCircle(Part.Circle(Vector(25.4, 167.6, 0), Vector(0, 0, 1), 3.8), math.radians(90), math.radians(270)),
    Part.ArcOfCircle(Part.Circle(Vector(25.4, 167.6, 0), Vector(0, 0, 1), 3.8), math.radians(0), math.radians(90)),
    Part.ArcOfCircle(Part.Circle(Vector(25.4, 167.6, 0), Vector(0, 0, 1), 3.8), math.radians(-90), math.radians(0)),
], False)
sketch4.addConstraint([
    Sketcher.Constraint("Tangent", 0, 2, 1, 1),
    Sketcher.Constraint("Tangent", 1, 2, 2, 1),
    Sketcher.Constraint("Tangent", 2, 2, 3, 1),
    Sketcher.Constraint("Tangent", 3, 2, 4, 1),
    Sketcher.Constraint("Tangent", 4, 2, 5, 1),
    Sketcher.Constraint("Tangent", 5, 2, 6, 1),
    Sketcher.Constraint("Tangent", 6, 2, 7, 1),
    Sketcher.Constraint("Tangent", 7, 2, 8, 1),
    Sketcher.Constraint("Tangent", 8, 2, 0, 1),
    Sketcher.Constraint("Tangent", 9, 1, 10, 2),
    Sketcher.Constraint("Tangent", 10, 1, 11, 2),
    Sketcher.Constraint("Tangent", 11, 1, 9, 2),
    Sketcher.Constraint("Tangent", 12, 2, 13, 1),
    Sketcher.Constraint("Tangent", 13, 2, 14, 1),
    Sketcher.Constraint("Tangent", 14, 2, 15, 1),
    Sketcher.Constraint("Tangent", 15, 2, 16, 1),
    Sketcher.Constraint("Tangent", 16, 2, 17, 1),
    Sketcher.Constraint("Tangent", 17, 2, 18, 1),
    Sketcher.Constraint("Tangent", 18, 2, 19, 1),
    Sketcher.Constraint("Tangent", 19, 2, 20, 1),
    Sketcher.Constraint("Tangent", 20, 2, 12, 1),
    Sketcher.Constraint("Tangent", 21, 1, 22, 2),
    Sketcher.Constraint("Tangent", 22, 1, 23, 2),
    Sketcher.Constraint("Tangent", 23, 1, 21, 2),
    Sketcher.Constraint("Coincident", 2, 3, 0, 3),
    Sketcher.Constraint("Coincident", 4, 3, 0, 3),
    Sketcher.Constraint("Coincident", 6, 3, 0, 3),
    Sketcher.Constraint("Coincident", 9, 3, 0, 3),
    Sketcher.Constraint("Coincident", 14, 3, 12, 3),
    Sketcher.Constraint("Coincident", 16, 3, 12, 3),
    Sketcher.Constraint("Coincident", 18, 3, 12, 3),
    Sketcher.Constraint("Coincident", 21, 3, 12, 3),
    Sketcher.Constraint("Equal", 8, 12),
    Sketcher.Constraint("Equal", 11, 21),
    Sketcher.Constraint("Symmetric", 0, 3, 12, 3, -2),
    Sketcher.Constraint("Horizontal", 23, 3, 4, 2),
    Sketcher.Constraint("Horizontal", 4, 2, 10, 1),
    Sketcher.Constraint("Horizontal", 3, 2, 12, 2),
    Sketcher.Constraint("Horizontal", 2, 2, 13, 2),
    Sketcher.Constraint("Horizontal", 1, 2, 14, 2),
    Sketcher.Constraint("Horizontal", 10, 1, 16, 2),
    Sketcher.Constraint("Horizontal", 7, 2, 18, 2),
    Sketcher.Constraint("Horizontal", 6, 2, 19, 2),
    Sketcher.Constraint("Horizontal", 5, 2, 20, 2),
    Sketcher.Constraint("Horizontal", 16, 2, 22, 1),
    Sketcher.Constraint("Vertical", 11, 3, 0, 2),
    Sketcher.Constraint("Vertical", 3, 2, 5, 2),
    Sketcher.Constraint("Vertical", 2, 2, 6, 2),
    Sketcher.Constraint("Vertical", 1, 2, 7, 2),
    Sketcher.Constraint("Vertical", 0, 2, 8, 2),
    Sketcher.Constraint("Vertical", 8, 2, 9, 1),
    Sketcher.Constraint("Vertical", 9, 1, 11, 1),
    Sketcher.Constraint("Vertical", 23, 3, 15, 2),
    Sketcher.Constraint("Vertical", 15, 2, 17, 2),
    Sketcher.Constraint("Vertical", 17, 2, 21, 1),
    Sketcher.Constraint("Vertical", 21, 1, 23, 1),
    Sketcher.Constraint("Radius", 0, Q("0.35 in")),
    Sketcher.Constraint("Radius", 9, Q("0.15 in")),
    Sketcher.Constraint("DistanceX", 0, 3, -1, 1, Q("1 in")),
    Sketcher.Constraint("DistanceY", -1, 1, 0, 3, Q("6.6 in")),
    Sketcher.Constraint("DistanceY", -1, 1, 1, 2, Q("6.3 in")),
    Sketcher.Constraint("DistanceY", -1, 1, 3, 2, Q("6.4 in")),
    Sketcher.Constraint("DistanceY", 0, 2, 2, 2, Q("0.1 in")),
])
pad4 = body2.newObject("PartDesign::Pad", "Pad003")
pad4.Profile = sketch4
pad4.Length = Q("0.09 in")
pad4.Reversed = True
body3 = doc.addObject("PartDesign::Body", "Body002")

sketch5 = body3.newObject("Sketcher::SketchObject", "Sketch004")
sketch5.AttachmentSupport = (doc.getObject("XY_Plane002"), [""])
sketch5.MapMode = "FlatFace"
sketch5.addGeometry([
    Part.ArcOfCircle(Part.Circle(Vector(89, -80, 0), Vector(0, 0, 1), 8), math.radians(0), math.radians(41)),
    Part.ArcOfCircle(Part.Circle(Vector(89, -80, 0), Vector(0, 0, 1), 8), math.radians(41), math.radians(228)),
    Part.ArcOfCircle(Part.Circle(Vector(89, -80, 0), Vector(0, 0, 1), 8), math.radians(-132), math.radians(0)),
], False)
sketch5.addConstraint([
    Sketcher.Constraint("Tangent", 0, 2, 1, 1),
    Sketcher.Constraint("Tangent", 1, 2, 2, 1),
    Sketcher.Constraint("Tangent", 2, 2, 0, 1),
    Sketcher.Constraint("Horizontal", 1, 3, 2, 2),
    Sketcher.Constraint("Radius", 0, Q("0.3 in")),
    Sketcher.Constraint("DistanceX", -1, 1, 0, 3, 88.88268),
    Sketcher.Constraint("DistanceX", -1, 1, 1, 2, 83.828251),
    Sketcher.Constraint("DistanceX", 1, 2, 0, 2, 10.771592),
    Sketcher.Constraint("DistanceY", 0, 3, -1, 1, 80.492296),
])
pad5 = body3.newObject("PartDesign::Pad", "Pad004")
pad5.Profile = sketch5
pad5.Length = Q("0.8 in")
body4 = doc.addObject("PartDesign::Body", "Body003")

sketch6 = body4.newObject("Sketcher::SketchObject", "Sketch005")
sketch6.AttachmentSupport = (doc.getObject("XY_Plane003"), [""])
sketch6.MapMode = "FlatFace"
sketch6.addGeometry([
    Part.ArcOfCircle(Part.Circle(Vector(-89, -80, 0), Vector(0, 0, 1), 8), math.radians(0), math.radians(139)),
    Part.ArcOfCircle(Part.Circle(Vector(-89, -80, 0), Vector(0, 0, 1), 8), math.radians(139), math.radians(312)),
    Part.ArcOfCircle(Part.Circle(Vector(-89, -80, 0), Vector(0, 0, 1), 8), math.radians(-48), math.radians(0)),
], False)
sketch6.addConstraint([
    Sketcher.Constraint("Tangent", 0, 2, 1, 1),
    Sketcher.Constraint("Tangent", 1, 2, 2, 1),
    Sketcher.Constraint("Tangent", 2, 2, 0, 1),
    Sketcher.Constraint("Horizontal", 1, 3, 2, 2),
    Sketcher.Constraint("Radius", 0, Q("0.3 in")),
    Sketcher.Constraint("DistanceX", 0, 3, -1, 1, 88.88268),
    Sketcher.Constraint("DistanceX", 1, 2, -1, 1, 83.828251),
    Sketcher.Constraint("DistanceX", 0, 2, 1, 2, 10.771592),
    Sketcher.Constraint("DistanceY", 0, 3, -1, 1, 80.492296),
])
pad6 = body4.newObject("PartDesign::Pad", "Pad005")
pad6.Profile = sketch6
pad6.Length = Q("0.8 in")
body5 = doc.addObject("PartDesign::Body", "Body004")

sketch7 = body5.newObject("Sketcher::SketchObject", "Sketch006")
sketch7.AttachmentSupport = (doc.getObject("XY_Plane004"), [""])
sketch7.MapMode = "FlatFace"
sketch7.AttachmentOffset = App.Placement(Vector(0, 0, 0.8 * 25.4), App.Rotation())
sketch7.addGeometry([
    Part.ArcOfCircle(Part.Circle(Vector(25.4, 167.6, 0), Vector(0, 0, 1), 3.8), math.radians(0), math.radians(90)),
    Part.ArcOfCircle(Part.Circle(Vector(25.4, 167.6, 0), Vector(0, 0, 1), 3.8), math.radians(90), math.radians(270)),
    Part.ArcOfCircle(Part.Circle(Vector(25.4, 167.6, 0), Vector(0, 0, 1), 3.8), math.radians(-90), math.radians(0)),
], False)
sketch7.addConstraint([
    Sketcher.Constraint("Tangent", 0, 2, 1, 1),
    Sketcher.Constraint("Tangent", 1, 2, 2, 1),
    Sketcher.Constraint("Tangent", 2, 2, 0, 1),
    Sketcher.Constraint("Horizontal", 1, 3, 2, 2),
    Sketcher.Constraint("Vertical", 2, 3, 0, 2),
    Sketcher.Constraint("Vertical", 0, 2, 1, 2),
    Sketcher.Constraint("Radius", 0, Q("0.15 in")),
    Sketcher.Constraint("DistanceX", -1, 1, 0, 3, Q("1 in")),
    Sketcher.Constraint("DistanceY", -1, 1, 0, 3, Q("6.6 in")),
])
pad7 = body5.newObject("PartDesign::Pad", "Pad006")
pad7.Profile = sketch7
pad7.Length = Q("0.1 in")
body6 = doc.addObject("PartDesign::Body", "Body005")

sketch8 = body6.newObject("Sketcher::SketchObject", "Sketch007")
sketch8.AttachmentSupport = (doc.getObject("XY_Plane005"), [""])
sketch8.MapMode = "FlatFace"
sketch8.AttachmentOffset = App.Placement(Vector(0, 0, 0.8 * 25.4), App.Rotation())
sketch8.addGeometry([
    Part.ArcOfCircle(Part.Circle(Vector(-25.4, 167.6, 0), Vector(0, 0, 1), 3.8), math.radians(0), math.radians(90)),
    Part.ArcOfCircle(Part.Circle(Vector(-25.4, 167.6, 0), Vector(0, 0, 1), 3.8), math.radians(90), math.radians(270)),
    Part.ArcOfCircle(Part.Circle(Vector(-25.4, 167.6, 0), Vector(0, 0, 1), 3.8), math.radians(-90), math.radians(0)),
], False)
sketch8.addConstraint([
    Sketcher.Constraint("Tangent", 0, 2, 1, 1),
    Sketcher.Constraint("Tangent", 1, 2, 2, 1),
    Sketcher.Constraint("Tangent", 2, 2, 0, 1),
    Sketcher.Constraint("Horizontal", 1, 3, 2, 2),
    Sketcher.Constraint("Vertical", 2, 3, 0, 2),
    Sketcher.Constraint("Vertical", 0, 2, 1, 2),
    Sketcher.Constraint("Radius", 0, Q("0.15 in")),
    Sketcher.Constraint("DistanceX", 0, 3, -1, 1, Q("1 in")),
    Sketcher.Constraint("DistanceY", -1, 1, 0, 3, Q("6.6 in")),
])
pad8 = body6.newObject("PartDesign::Pad", "Pad007")
pad8.Profile = sketch8
pad8.Length = Q("0.1 in")

doc.recompute()
